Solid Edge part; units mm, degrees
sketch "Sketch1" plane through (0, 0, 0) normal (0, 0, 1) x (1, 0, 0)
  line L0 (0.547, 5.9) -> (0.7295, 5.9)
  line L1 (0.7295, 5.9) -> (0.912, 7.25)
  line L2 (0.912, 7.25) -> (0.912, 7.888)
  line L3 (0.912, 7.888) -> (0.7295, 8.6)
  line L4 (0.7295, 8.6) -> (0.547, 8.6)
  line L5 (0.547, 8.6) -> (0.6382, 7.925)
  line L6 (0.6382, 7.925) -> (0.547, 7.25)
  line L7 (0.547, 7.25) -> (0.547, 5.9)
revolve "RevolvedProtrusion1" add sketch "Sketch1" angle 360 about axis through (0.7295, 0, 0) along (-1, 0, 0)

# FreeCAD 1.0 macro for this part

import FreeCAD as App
import Part
import Sketcher

V = App.Vector
Q = App.Units.Quantity


def add_polygon(sketch, points):
    """Adds a closed chain of lines whose ends are joined by coincident constraints."""
    first, n = sketch.GeometryCount, len(points)
    for a, b in zip(points, points[1:] + points[:1]):
        sketch.addGeometry(Part.LineSegment(App.Vector(*a, 0), App.Vector(*b, 0)), False)
    for i in range(n):
        sketch.addConstraint(Sketcher.Constraint("Coincident", first + i, 2, first + (i + 1) % n, 1))

doc = App.newDocument("Part")
body = doc.addObject("PartDesign::Body", "Body")

sketch1 = doc.addObject("Sketcher::SketchObject", "Sketch")
body.addObject(sketch1)
sketch1.AttachmentSupport = (doc.XY_Plane, [""])
sketch1.MapMode = "FlatFace"
add_polygon(sketch1, [(0.547, 7.25), (0.547, 5.9), (0.7295, 5.9), (0.912, 7.25), (0.912, 7.888), (0.7295, 8.6), (0.547, 8.6), (0.6382, 7.925)])
sketch1.addConstraint([
    Sketcher.Constraint("Vertical", 0),
    Sketcher.Constraint("Horizontal", 1),
    Sketcher.Constraint("Vertical", 3),
    Sketcher.Constraint("Horizontal", 5),
    Sketcher.Constraint("Parallel", 2, 7),
    Sketcher.Constraint("Horizontal", 2, 2, 7, 2),
    Sketcher.Constraint("Vertical", 1, 2, 4, 2),
    Sketcher.Constraint("Vertical", 0, 2, 5, 2),
    Sketcher.Constraint("Equal", 6, 7),
    Sketcher.Constraint("Angle", 2, Q("82.3011 deg")),
    Sketcher.Constraint("DistanceY", 0, 2, 0, 1, Q("1.35 mm")),
    Sketcher.Constraint("DistanceY", -1, 1, 0, 2, Q("5.9 mm")),
    Sketcher.Constraint("DistanceY", -1, 1, 4, 2, Q("8.6 mm")),
    Sketcher.Constraint("DistanceY", 3, 1, 3, 2, Q("0.638 mm")),
    Sketcher.Constraint("DistanceX", 1, 1, 1, 2, Q("0.1825 mm")),
    Sketcher.Constraint("DistanceX", -1, 1, 0, 2, Q("0.547 mm")),
])
revolution = doc.addObject("PartDesign::Revolution", "Revolution")
body.addObject(revolution)
revolution.Profile = sketch1
revolution.ReferenceAxis = (sketch1, ["H_Axis"])
revolution.Angle = 360

doc.recompute()
